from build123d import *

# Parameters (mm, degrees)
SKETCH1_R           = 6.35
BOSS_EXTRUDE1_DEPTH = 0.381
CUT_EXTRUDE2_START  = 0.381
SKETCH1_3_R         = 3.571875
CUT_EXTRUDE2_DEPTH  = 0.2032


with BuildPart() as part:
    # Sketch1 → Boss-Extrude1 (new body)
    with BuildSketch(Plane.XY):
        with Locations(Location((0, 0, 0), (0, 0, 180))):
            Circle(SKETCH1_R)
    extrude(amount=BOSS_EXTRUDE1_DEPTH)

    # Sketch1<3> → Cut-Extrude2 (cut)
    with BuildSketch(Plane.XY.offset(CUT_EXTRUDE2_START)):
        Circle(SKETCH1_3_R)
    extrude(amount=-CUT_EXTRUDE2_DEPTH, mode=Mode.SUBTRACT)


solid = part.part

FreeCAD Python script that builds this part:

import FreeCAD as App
import Part
import Sketcher
Q = App.Units.Quantity

doc = App.newDocument("Part")
body = doc.addObject("PartDesign::Body", "Body")

# Sketch on XY plane
sketch1 = body.newObject("Sketcher::SketchObject", "Sketch")
sketch1.AttachmentSupport = (doc.getObject("XY_Plane"), [""])
sketch1.MapMode = "FlatFace"
sketch1.addGeometry(Part.Circle(App.Vector(0, 0, 0), App.Vector(0, 0, 1), 6), False)
sketch1.addConstraint([
    Sketcher.Constraint("Coincident", 0, 3, -1, 1),
    Sketcher.Constraint("Diameter", 0, Q("0.5 in")),
])
pad1 = body.newObject("PartDesign::Pad", "Pad")
pad1.Profile = sketch1
pad1.Length = Q("0.015 in")

# Sketch on XY plane
sketch2 = body.newObject("Sketcher::SketchObject", "Sketch001")
sketch2.AttachmentSupport = (doc.getObject("XY_Plane"), [""])
sketch2.MapMode = "FlatFace"
sketch2.AttachmentOffset = App.Placement(App.Vector(0, 0, 0.015 * 25.4), App.Rotation())
sketch2.addGeometry(Part.Circle(App.Vector(0, 0, 0), App.Vector(0, 0, 1), 3.6), False)
sketch2.addConstraint([
    Sketcher.Constraint("Coincident", 0, 3, -1, 1),
    Sketcher.Constraint("Diameter", 0, Q("0.28125 in")),
])
pocket1 = body.newObject("PartDesign::Pocket", "Pocket")
pocket1.Profile = sketch2
pocket1.Length = Q("0.008 in")

doc.recompute()
